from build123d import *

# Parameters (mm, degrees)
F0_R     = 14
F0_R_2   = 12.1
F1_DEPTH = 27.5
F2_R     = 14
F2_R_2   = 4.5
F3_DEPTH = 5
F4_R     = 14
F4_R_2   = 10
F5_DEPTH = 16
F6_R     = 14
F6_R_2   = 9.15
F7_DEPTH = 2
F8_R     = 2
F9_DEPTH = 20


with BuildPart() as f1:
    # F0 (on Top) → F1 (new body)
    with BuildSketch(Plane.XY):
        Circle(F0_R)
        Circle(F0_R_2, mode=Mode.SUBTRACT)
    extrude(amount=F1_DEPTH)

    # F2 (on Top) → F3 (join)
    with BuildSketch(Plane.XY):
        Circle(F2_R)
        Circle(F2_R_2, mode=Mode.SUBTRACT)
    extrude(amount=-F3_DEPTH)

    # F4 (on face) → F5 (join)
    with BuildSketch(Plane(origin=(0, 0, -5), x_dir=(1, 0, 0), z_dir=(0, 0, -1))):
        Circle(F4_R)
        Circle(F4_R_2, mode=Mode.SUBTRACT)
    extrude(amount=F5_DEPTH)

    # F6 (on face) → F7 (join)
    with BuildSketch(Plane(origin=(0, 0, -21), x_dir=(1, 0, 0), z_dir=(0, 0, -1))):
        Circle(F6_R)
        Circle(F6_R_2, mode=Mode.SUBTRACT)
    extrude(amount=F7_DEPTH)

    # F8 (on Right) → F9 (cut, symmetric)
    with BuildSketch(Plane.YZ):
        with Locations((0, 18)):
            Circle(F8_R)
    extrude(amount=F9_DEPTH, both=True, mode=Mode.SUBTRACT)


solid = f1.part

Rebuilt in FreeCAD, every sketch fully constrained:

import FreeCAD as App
import Part
import Sketcher
Q = App.Units.Quantity

doc = App.newDocument("Part")
body = doc.addObject("PartDesign::Body", "Body")

sketch1 = doc.addObject("Sketcher::SketchObject", "Sketch")
body.addObject(sketch1)
sketch1.AttachmentSupport = (doc.XY_Plane, [""])
sketch1.MapMode = "FlatFace"
sketch1.addGeometry([
    Part.Circle(App.Vector(0, 0, 0), App.Vector(0, 0, 1), 14),
    Part.Circle(App.Vector(0, 0, 0), App.Vector(0, 0, 1), 12),
], False)
sketch1.addConstraint([
    Sketcher.Constraint("Coincident", 0, 3, -1, 1),
    Sketcher.Constraint("Coincident", 1, 3, -1, 1),
    Sketcher.Constraint("Diameter", 0, Q("28 mm")),
    Sketcher.Constraint("Diameter", 1, Q("24.2 mm")),
])
pad1 = doc.addObject("PartDesign::Pad", "Pad")
body.addObject(pad1)
pad1.Profile = sketch1
pad1.Length = 27.5

sketch2 = doc.addObject("Sketcher::SketchObject", "Sketch001")
body.addObject(sketch2)
sketch2.AttachmentSupport = (doc.XY_Plane, [""])
sketch2.MapMode = "FlatFace"
sketch2.addGeometry([
    Part.Circle(App.Vector(0, 0, 0), App.Vector(0, 0, 1), 14),
    Part.Circle(App.Vector(0, 0, 0), App.Vector(0, 0, 1), 4.5),
], False)
sketch2.addConstraint([
    Sketcher.Constraint("Coincident", 0, 3, -1, 1),
    Sketcher.Constraint("Coincident", 1, 3, -1, 1),
    Sketcher.Constraint("Diameter", 0, Q("28 mm")),
    Sketcher.Constraint("Diameter", 1, Q("9 mm")),
])
pad2 = doc.addObject("PartDesign::Pad", "Pad001")
body.addObject(pad2)
pad2.Profile = sketch2
pad2.Length = 5
pad2.Reversed = True

sketch3 = doc.addObject("Sketcher::SketchObject", "Sketch002")
body.addObject(sketch3)
sketch3.AttachmentSupport = (doc.XY_Plane, [""])
sketch3.MapMode = "FlatFace"
sketch3.AttachmentOffset = App.Placement(App.Vector(0, 0, -5), App.Rotation())
sketch3.addGeometry([
    Part.Circle(App.Vector(0, 0, 0), App.Vector(0, 0, 1), 14),
    Part.Circle(App.Vector(0, 0, 0), App.Vector(0, 0, 1), 10),
], False)
sketch3.addConstraint([
    Sketcher.Constraint("Coincident", 0, 3, -1, 1),
    Sketcher.Constraint("Coincident", 1, 3, -1, 1),
    Sketcher.Constraint("Diameter", 0, Q("28 mm")),
    Sketcher.Constraint("Diameter", 1, Q("20 mm")),
])
pad3 = doc.addObject("PartDesign::Pad", "Pad002")
body.addObject(pad3)
pad3.Profile = sketch3
pad3.Length = 16
pad3.Reversed = True

sketch4 = doc.addObject("Sketcher::SketchObject", "Sketch003")
body.addObject(sketch4)
sketch4.AttachmentSupport = (doc.XY_Plane, [""])
sketch4.MapMode = "FlatFace"
sketch4.AttachmentOffset = App.Placement(App.Vector(0, 0, -21), App.Rotation())
sketch4.addGeometry([
    Part.Circle(App.Vector(0, 0, 0), App.Vector(0, 0, 1), 14),
    Part.Circle(App.Vector(0, 0, 0), App.Vector(0, 0, 1), 9),
], False)
sketch4.addConstraint([
    Sketcher.Constraint("Coincident", 0, 3, -1, 1),
    Sketcher.Constraint("Coincident", 1, 3, -1, 1),
    Sketcher.Constraint("Diameter", 0, Q("28 mm")),
    Sketcher.Constraint("Diameter", 1, Q("18.3 mm")),
])
pad4 = doc.addObject("PartDesign::Pad", "Pad003")
body.addObject(pad4)
pad4.Profile = sketch4
pad4.Length = 2
pad4.Reversed = True

sketch5 = doc.addObject("Sketcher::SketchObject", "Sketch004")
body.addObject(sketch5)
sketch5.AttachmentSupport = (doc.YZ_Plane, [""])
sketch5.MapMode = "FlatFace"
sketch5.addGeometry(Part.Circle(App.Vector(0, 18, 0), App.Vector(0, 0, 1), 2), False)
sketch5.addConstraint([
    Sketcher.Constraint("PointOnObject", 0, 3, -2),
    Sketcher.Constraint("Diameter", 0, Q("4 mm")),
    Sketcher.Constraint("DistanceY", -1, 1, 0, 3, Q("18 mm")),
])
pocket1 = doc.addObject("PartDesign::Pocket", "Pocket")
body.addObject(pocket1)
pocket1.Profile = sketch5
pocket1.Length = 40
pocket1.Midplane = True

doc.recompute()
